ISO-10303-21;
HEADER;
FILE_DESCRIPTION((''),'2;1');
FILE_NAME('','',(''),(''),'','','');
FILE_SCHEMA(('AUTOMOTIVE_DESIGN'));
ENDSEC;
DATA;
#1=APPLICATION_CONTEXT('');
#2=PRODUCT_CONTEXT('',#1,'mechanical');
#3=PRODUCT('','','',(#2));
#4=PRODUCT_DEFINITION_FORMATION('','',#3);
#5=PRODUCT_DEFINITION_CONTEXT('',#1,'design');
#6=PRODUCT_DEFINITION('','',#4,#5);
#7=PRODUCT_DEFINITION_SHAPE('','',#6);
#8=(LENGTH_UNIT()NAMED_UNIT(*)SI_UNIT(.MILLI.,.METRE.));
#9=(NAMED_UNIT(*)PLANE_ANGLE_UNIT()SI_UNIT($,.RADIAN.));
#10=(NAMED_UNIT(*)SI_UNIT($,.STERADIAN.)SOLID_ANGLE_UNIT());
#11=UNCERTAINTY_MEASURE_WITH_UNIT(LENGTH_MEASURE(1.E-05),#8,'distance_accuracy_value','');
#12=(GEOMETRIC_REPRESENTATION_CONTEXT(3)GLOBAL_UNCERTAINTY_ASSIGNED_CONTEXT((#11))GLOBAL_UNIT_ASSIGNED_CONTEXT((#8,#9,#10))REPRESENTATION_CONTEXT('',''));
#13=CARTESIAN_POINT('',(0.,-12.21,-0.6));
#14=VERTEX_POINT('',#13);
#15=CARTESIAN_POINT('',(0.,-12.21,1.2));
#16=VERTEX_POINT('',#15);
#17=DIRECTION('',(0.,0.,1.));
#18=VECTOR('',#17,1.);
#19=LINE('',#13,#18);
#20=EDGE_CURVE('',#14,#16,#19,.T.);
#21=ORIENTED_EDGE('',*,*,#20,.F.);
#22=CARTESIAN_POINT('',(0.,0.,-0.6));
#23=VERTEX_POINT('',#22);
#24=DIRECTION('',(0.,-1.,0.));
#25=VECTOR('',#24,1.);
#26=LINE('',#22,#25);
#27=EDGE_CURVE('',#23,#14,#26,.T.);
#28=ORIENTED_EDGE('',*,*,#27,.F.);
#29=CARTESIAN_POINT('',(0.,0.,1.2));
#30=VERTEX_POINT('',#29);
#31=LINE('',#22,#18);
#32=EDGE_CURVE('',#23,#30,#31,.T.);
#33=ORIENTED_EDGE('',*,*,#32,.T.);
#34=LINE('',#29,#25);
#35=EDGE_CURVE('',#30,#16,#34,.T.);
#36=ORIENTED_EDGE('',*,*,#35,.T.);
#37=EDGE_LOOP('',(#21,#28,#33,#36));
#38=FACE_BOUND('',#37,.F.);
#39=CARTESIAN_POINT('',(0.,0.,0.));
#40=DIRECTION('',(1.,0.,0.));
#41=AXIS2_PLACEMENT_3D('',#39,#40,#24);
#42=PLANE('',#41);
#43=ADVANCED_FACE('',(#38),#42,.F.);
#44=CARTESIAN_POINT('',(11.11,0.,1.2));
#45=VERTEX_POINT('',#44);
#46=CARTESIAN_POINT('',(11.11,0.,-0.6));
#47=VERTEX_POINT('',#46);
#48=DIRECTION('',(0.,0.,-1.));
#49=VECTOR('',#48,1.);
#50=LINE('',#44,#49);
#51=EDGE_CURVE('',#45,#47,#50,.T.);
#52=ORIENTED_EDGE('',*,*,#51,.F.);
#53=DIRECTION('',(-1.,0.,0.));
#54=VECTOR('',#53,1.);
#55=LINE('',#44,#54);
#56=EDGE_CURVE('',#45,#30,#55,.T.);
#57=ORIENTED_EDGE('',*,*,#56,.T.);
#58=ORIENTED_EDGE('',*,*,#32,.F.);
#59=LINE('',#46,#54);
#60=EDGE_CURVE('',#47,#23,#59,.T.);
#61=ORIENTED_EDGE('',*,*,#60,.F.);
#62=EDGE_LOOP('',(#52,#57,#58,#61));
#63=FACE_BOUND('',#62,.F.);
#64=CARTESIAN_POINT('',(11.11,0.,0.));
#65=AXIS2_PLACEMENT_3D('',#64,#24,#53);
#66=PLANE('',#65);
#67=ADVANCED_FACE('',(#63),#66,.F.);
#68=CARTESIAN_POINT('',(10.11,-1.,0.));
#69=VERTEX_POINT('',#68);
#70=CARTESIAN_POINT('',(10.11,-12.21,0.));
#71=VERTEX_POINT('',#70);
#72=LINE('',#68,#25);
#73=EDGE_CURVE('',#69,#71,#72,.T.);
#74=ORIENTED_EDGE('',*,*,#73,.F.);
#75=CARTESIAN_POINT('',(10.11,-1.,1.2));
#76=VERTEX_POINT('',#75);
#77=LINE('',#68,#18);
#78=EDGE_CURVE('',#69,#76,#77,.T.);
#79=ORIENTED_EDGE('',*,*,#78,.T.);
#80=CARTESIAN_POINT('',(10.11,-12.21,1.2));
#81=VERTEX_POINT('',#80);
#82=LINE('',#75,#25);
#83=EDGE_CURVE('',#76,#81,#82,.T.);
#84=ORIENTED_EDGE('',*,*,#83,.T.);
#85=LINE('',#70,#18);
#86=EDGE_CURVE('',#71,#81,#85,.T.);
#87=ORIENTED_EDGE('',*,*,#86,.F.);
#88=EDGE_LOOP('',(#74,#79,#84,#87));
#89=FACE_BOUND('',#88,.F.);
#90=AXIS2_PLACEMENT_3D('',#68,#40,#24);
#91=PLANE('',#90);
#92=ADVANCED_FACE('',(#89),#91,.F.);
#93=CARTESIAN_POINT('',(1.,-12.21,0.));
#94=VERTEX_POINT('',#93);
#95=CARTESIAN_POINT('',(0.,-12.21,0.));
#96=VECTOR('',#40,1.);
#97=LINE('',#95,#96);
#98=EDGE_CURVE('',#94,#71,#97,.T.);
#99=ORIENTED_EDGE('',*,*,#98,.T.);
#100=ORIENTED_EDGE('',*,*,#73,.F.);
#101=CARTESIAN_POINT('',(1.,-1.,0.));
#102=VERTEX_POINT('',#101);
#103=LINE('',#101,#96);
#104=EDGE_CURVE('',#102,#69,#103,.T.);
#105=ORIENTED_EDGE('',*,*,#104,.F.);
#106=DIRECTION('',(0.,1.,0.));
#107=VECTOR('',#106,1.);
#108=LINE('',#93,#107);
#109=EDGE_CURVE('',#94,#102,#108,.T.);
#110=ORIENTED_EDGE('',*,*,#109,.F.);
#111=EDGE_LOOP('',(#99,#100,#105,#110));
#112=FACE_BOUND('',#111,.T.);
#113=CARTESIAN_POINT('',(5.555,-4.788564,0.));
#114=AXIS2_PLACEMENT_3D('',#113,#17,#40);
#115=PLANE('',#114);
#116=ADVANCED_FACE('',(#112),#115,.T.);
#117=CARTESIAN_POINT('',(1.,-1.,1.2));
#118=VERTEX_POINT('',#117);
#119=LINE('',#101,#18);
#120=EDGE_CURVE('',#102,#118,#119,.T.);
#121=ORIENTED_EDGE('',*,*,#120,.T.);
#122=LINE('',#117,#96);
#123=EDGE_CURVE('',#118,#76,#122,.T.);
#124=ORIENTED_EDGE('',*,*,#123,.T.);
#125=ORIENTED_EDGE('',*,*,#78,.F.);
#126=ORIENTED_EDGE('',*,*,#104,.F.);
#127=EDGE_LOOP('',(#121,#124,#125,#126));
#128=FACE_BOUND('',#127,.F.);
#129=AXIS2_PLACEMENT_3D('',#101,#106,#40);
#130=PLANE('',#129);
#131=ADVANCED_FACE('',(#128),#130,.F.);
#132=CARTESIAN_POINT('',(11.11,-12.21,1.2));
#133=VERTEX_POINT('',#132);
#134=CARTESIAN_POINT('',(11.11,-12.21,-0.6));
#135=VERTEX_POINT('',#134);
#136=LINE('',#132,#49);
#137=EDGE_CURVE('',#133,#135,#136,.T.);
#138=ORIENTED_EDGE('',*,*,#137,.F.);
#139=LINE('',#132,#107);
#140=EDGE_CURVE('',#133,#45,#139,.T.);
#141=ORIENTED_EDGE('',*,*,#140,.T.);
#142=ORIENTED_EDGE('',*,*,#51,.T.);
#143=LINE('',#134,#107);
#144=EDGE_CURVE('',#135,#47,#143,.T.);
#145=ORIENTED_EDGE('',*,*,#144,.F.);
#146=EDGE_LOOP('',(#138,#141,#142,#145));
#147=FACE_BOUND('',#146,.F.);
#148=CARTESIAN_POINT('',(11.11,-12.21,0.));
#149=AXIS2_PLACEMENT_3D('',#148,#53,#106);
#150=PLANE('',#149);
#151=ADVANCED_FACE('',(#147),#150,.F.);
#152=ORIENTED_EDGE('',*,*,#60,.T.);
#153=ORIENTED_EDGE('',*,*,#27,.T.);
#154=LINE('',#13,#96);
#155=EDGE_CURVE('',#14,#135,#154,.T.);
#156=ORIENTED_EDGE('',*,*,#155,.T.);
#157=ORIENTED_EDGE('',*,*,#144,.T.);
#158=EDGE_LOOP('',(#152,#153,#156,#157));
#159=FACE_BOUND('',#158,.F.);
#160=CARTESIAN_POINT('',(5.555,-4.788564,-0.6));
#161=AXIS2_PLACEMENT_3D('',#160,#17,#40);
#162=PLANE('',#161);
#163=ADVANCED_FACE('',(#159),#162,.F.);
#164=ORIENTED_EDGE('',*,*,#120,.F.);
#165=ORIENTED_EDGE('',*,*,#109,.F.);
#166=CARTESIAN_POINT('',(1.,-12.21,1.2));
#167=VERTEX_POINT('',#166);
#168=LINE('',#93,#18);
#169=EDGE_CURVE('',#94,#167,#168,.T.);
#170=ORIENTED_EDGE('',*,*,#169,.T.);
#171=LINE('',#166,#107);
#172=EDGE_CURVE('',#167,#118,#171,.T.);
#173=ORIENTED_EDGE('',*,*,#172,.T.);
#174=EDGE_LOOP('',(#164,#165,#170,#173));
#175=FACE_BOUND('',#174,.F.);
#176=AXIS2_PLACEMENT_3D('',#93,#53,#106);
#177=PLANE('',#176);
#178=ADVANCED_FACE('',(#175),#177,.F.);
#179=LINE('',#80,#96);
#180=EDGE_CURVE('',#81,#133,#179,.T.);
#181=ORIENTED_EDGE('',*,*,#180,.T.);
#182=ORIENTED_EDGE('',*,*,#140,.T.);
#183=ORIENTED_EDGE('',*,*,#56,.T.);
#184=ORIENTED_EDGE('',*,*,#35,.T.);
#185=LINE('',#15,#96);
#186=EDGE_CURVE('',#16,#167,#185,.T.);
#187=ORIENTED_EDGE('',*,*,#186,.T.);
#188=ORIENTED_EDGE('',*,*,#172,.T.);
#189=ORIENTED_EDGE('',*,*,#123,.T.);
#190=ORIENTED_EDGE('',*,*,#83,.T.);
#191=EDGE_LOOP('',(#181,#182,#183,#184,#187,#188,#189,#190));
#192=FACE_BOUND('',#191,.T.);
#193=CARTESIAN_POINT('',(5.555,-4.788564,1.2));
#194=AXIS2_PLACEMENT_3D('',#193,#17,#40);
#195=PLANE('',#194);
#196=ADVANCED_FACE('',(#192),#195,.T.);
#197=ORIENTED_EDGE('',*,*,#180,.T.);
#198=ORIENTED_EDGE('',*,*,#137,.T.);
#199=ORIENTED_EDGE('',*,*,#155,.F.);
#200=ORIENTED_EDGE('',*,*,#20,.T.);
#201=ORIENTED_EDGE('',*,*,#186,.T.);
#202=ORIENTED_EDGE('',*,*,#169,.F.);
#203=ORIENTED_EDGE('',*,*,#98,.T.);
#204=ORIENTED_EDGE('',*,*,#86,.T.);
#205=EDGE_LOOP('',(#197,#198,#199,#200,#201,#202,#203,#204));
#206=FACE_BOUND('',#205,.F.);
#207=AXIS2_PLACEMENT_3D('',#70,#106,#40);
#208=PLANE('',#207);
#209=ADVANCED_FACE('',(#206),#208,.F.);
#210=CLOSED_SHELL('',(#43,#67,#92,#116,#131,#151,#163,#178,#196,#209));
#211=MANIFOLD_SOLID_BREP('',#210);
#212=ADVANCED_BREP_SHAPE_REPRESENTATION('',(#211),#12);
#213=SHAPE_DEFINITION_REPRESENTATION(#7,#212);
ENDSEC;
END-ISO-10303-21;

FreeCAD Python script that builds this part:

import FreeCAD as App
import Part
import Sketcher
from FreeCAD import Vector

doc = App.newDocument("Part")
body = doc.addObject("PartDesign::Body", "Body")

# Sketch on XY plane
sketch1 = body.newObject("Sketcher::SketchObject", "Sketch")
sketch1.AttachmentSupport = (doc.getObject("XY_Plane"), [""])
sketch1.MapMode = "FlatFace"
sketch1.addGeometry(Part.LineSegment(Vector(11.11, 0, 0), Vector(0, 0, 0)), False)
sketch1.addGeometry(Part.LineSegment(Vector(0, 0, 0), Vector(0, -12.21, 0)), False)
sketch1.addGeometry(Part.LineSegment(Vector(0, -12.21, 0), Vector(11.11, -12.21, 0)), False)
sketch1.addGeometry(Part.LineSegment(Vector(11.11, -12.21, 0), Vector(11.11, 0, 0)), False)
sketch1.addConstraint(Sketcher.Constraint("Coincident", 0, 2, 1, 1))
sketch1.addConstraint(Sketcher.Constraint("Coincident", 1, 2, 2, 1))
sketch1.addConstraint(Sketcher.Constraint("Coincident", 2, 2, 3, 1))
sketch1.addConstraint(Sketcher.Constraint("Coincident", 3, 2, 0, 1))
sketch1.addConstraint(Sketcher.Constraint("Horizontal", 0))
sketch1.addConstraint(Sketcher.Constraint("Vertical", 1))
sketch1.addConstraint(Sketcher.Constraint("Horizontal", 2))
sketch1.addConstraint(Sketcher.Constraint("Vertical", 3))
sketch1.addConstraint(Sketcher.Constraint("Coincident", 0, 2, -1, 1))
sketch1.addConstraint(Sketcher.Constraint("DistanceX", 0, 2, 0, 1, 11.11))
sketch1.addConstraint(Sketcher.Constraint("DistanceY", 1, 2, 1, 1, 12.21))
pad1 = body.newObject("PartDesign::Pad", "Pad")
pad1.Profile = sketch1
pad1.Length = 0.6
pad1.Reversed = True

# Sketch on XY plane
sketch2 = body.newObject("Sketcher::SketchObject", "Sketch001")
sketch2.AttachmentSupport = (doc.getObject("XY_Plane"), [""])
sketch2.MapMode = "FlatFace"
sketch2.addGeometry(Part.LineSegment(Vector(11.11, 0, 0), Vector(0, 0, 0)), False)
sketch2.addGeometry(Part.LineSegment(Vector(0, 0, 0), Vector(0, -12.21, 0)), False)
sketch2.addGeometry(Part.LineSegment(Vector(0, -12.21, 0), Vector(1, -12.21, 0)), False)
sketch2.addGeometry(Part.LineSegment(Vector(1, -12.21, 0), Vector(1, -1, 0)), False)
sketch2.addGeometry(Part.LineSegment(Vector(1, -1, 0), Vector(10.11, -1, 0)), False)
sketch2.addGeometry(Part.LineSegment(Vector(10.11, -1, 0), Vector(10.11, -12.21, 0)), False)
sketch2.addGeometry(Part.LineSegment(Vector(10.11, -12.21, 0), Vector(11.11, -12.21, 0)), False)
sketch2.addGeometry(Part.LineSegment(Vector(11.11, -12.21, 0), Vector(11.11, 0, 0)), False)
sketch2.addConstraint(Sketcher.Constraint("Coincident", 0, 2, 1, 1))
sketch2.addConstraint(Sketcher.Constraint("Coincident", 1, 2, 2, 1))
sketch2.addConstraint(Sketcher.Constraint("Coincident", 2, 2, 3, 1))
sketch2.addConstraint(Sketcher.Constraint("Coincident", 3, 2, 4, 1))
sketch2.addConstraint(Sketcher.Constraint("Coincident", 4, 2, 5, 1))
sketch2.addConstraint(Sketcher.Constraint("Coincident", 5, 2, 6, 1))
sketch2.addConstraint(Sketcher.Constraint("Coincident", 6, 2, 7, 1))
sketch2.addConstraint(Sketcher.Constraint("Coincident", 7, 2, 0, 1))
sketch2.addConstraint(Sketcher.Constraint("Horizontal", 0))
sketch2.addConstraint(Sketcher.Constraint("Vertical", 1))
sketch2.addConstraint(Sketcher.Constraint("Horizontal", 2))
sketch2.addConstraint(Sketcher.Constraint("Vertical", 3))
sketch2.addConstraint(Sketcher.Constraint("Horizontal", 4))
sketch2.addConstraint(Sketcher.Constraint("Vertical", 5))
sketch2.addConstraint(Sketcher.Constraint("Horizontal", 6))
sketch2.addConstraint(Sketcher.Constraint("Vertical", 7))
sketch2.addConstraint(Sketcher.Constraint("Coincident", 0, 2, -1, 1))
sketch2.addConstraint(Sketcher.Constraint("Horizontal", 2, 2, 5, 2))
sketch2.addConstraint(Sketcher.Constraint("Equal", 2, 6))
sketch2.addConstraint(Sketcher.Constraint("DistanceX", 2, 1, 2, 2, 1.0))
sketch2.addConstraint(Sketcher.Constraint("DistanceY", 3, 2, -1, 1, 1.0))
sketch2.addConstraint(Sketcher.Constraint("DistanceX", 0, 2, 0, 1, 11.11))
sketch2.addConstraint(Sketcher.Constraint("DistanceY", 1, 2, 1, 1, 12.21))
pad2 = body.newObject("PartDesign::Pad", "Pad001")
pad2.Profile = sketch2
pad2.Length = 1.2

doc.recompute()
